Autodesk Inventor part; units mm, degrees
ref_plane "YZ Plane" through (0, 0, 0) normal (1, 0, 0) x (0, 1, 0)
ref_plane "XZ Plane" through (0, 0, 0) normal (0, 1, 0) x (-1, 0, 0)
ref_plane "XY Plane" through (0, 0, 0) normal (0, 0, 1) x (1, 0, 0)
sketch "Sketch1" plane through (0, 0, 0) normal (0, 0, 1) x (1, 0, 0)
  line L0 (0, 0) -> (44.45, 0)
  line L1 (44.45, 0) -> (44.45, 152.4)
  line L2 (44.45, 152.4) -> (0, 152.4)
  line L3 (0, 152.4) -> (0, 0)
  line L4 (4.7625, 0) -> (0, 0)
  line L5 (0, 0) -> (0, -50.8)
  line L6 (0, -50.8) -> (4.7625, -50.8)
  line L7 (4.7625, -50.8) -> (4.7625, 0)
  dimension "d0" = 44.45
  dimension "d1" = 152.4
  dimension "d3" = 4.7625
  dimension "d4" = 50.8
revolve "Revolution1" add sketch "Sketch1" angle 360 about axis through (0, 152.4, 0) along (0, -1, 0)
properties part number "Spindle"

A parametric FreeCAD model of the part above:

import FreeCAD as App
import Part
import Sketcher

V = App.Vector
Q = App.Units.Quantity


def add_polygon(sketch, points):
    """Adds a closed chain of lines whose ends are joined by coincident constraints."""
    first, n = sketch.GeometryCount, len(points)
    for a, b in zip(points, points[1:] + points[:1]):
        sketch.addGeometry(Part.LineSegment(App.Vector(*a, 0), App.Vector(*b, 0)), False)
    for i in range(n):
        sketch.addConstraint(Sketcher.Constraint("Coincident", first + i, 2, first + (i + 1) % n, 1))

doc = App.newDocument("Part")
body = doc.addObject("PartDesign::Body", "Body")

# Sketch on XY plane
sketch1 = body.newObject("Sketcher::SketchObject", "Sketch")
sketch1.AttachmentSupport = (doc.getObject("XY_Plane"), [""])
sketch1.MapMode = "FlatFace"
add_polygon(sketch1, [(0, 152.4), (0, -50.8), (4.7625, -50.8), (4.7625, 0), (44.45, 0), (44.45, 152.4)])  # lines 0-5
sketch1.addConstraint([
    Sketcher.Constraint("Vertical", 0),
    Sketcher.Constraint("Horizontal", 1),
    Sketcher.Constraint("Vertical", 2),
    Sketcher.Constraint("Horizontal", 3),
    Sketcher.Constraint("Vertical", 4),
    Sketcher.Constraint("Horizontal", 5),
    Sketcher.Constraint("PointOnObject", 0, 2, -2),
    Sketcher.Constraint("PointOnObject", 2, 2, -1),
    Sketcher.Constraint("DistanceY", 2, 1, 2, 2, Q("2 in")),
    Sketcher.Constraint("DistanceY", 4, 1, 4, 2, Q("6 in")),
    Sketcher.Constraint("DistanceX", 5, 2, 5, 1, Q("1.75 in")),
    Sketcher.Constraint("DistanceX", 1, 1, 1, 2, Q("0.1875 in")),
])
revolution = body.newObject("PartDesign::Revolution", "Revolution")
revolution.Profile = sketch1
revolution.ReferenceAxis = (sketch1, ["V_Axis"])
revolution.Angle = 360

doc.recompute()
